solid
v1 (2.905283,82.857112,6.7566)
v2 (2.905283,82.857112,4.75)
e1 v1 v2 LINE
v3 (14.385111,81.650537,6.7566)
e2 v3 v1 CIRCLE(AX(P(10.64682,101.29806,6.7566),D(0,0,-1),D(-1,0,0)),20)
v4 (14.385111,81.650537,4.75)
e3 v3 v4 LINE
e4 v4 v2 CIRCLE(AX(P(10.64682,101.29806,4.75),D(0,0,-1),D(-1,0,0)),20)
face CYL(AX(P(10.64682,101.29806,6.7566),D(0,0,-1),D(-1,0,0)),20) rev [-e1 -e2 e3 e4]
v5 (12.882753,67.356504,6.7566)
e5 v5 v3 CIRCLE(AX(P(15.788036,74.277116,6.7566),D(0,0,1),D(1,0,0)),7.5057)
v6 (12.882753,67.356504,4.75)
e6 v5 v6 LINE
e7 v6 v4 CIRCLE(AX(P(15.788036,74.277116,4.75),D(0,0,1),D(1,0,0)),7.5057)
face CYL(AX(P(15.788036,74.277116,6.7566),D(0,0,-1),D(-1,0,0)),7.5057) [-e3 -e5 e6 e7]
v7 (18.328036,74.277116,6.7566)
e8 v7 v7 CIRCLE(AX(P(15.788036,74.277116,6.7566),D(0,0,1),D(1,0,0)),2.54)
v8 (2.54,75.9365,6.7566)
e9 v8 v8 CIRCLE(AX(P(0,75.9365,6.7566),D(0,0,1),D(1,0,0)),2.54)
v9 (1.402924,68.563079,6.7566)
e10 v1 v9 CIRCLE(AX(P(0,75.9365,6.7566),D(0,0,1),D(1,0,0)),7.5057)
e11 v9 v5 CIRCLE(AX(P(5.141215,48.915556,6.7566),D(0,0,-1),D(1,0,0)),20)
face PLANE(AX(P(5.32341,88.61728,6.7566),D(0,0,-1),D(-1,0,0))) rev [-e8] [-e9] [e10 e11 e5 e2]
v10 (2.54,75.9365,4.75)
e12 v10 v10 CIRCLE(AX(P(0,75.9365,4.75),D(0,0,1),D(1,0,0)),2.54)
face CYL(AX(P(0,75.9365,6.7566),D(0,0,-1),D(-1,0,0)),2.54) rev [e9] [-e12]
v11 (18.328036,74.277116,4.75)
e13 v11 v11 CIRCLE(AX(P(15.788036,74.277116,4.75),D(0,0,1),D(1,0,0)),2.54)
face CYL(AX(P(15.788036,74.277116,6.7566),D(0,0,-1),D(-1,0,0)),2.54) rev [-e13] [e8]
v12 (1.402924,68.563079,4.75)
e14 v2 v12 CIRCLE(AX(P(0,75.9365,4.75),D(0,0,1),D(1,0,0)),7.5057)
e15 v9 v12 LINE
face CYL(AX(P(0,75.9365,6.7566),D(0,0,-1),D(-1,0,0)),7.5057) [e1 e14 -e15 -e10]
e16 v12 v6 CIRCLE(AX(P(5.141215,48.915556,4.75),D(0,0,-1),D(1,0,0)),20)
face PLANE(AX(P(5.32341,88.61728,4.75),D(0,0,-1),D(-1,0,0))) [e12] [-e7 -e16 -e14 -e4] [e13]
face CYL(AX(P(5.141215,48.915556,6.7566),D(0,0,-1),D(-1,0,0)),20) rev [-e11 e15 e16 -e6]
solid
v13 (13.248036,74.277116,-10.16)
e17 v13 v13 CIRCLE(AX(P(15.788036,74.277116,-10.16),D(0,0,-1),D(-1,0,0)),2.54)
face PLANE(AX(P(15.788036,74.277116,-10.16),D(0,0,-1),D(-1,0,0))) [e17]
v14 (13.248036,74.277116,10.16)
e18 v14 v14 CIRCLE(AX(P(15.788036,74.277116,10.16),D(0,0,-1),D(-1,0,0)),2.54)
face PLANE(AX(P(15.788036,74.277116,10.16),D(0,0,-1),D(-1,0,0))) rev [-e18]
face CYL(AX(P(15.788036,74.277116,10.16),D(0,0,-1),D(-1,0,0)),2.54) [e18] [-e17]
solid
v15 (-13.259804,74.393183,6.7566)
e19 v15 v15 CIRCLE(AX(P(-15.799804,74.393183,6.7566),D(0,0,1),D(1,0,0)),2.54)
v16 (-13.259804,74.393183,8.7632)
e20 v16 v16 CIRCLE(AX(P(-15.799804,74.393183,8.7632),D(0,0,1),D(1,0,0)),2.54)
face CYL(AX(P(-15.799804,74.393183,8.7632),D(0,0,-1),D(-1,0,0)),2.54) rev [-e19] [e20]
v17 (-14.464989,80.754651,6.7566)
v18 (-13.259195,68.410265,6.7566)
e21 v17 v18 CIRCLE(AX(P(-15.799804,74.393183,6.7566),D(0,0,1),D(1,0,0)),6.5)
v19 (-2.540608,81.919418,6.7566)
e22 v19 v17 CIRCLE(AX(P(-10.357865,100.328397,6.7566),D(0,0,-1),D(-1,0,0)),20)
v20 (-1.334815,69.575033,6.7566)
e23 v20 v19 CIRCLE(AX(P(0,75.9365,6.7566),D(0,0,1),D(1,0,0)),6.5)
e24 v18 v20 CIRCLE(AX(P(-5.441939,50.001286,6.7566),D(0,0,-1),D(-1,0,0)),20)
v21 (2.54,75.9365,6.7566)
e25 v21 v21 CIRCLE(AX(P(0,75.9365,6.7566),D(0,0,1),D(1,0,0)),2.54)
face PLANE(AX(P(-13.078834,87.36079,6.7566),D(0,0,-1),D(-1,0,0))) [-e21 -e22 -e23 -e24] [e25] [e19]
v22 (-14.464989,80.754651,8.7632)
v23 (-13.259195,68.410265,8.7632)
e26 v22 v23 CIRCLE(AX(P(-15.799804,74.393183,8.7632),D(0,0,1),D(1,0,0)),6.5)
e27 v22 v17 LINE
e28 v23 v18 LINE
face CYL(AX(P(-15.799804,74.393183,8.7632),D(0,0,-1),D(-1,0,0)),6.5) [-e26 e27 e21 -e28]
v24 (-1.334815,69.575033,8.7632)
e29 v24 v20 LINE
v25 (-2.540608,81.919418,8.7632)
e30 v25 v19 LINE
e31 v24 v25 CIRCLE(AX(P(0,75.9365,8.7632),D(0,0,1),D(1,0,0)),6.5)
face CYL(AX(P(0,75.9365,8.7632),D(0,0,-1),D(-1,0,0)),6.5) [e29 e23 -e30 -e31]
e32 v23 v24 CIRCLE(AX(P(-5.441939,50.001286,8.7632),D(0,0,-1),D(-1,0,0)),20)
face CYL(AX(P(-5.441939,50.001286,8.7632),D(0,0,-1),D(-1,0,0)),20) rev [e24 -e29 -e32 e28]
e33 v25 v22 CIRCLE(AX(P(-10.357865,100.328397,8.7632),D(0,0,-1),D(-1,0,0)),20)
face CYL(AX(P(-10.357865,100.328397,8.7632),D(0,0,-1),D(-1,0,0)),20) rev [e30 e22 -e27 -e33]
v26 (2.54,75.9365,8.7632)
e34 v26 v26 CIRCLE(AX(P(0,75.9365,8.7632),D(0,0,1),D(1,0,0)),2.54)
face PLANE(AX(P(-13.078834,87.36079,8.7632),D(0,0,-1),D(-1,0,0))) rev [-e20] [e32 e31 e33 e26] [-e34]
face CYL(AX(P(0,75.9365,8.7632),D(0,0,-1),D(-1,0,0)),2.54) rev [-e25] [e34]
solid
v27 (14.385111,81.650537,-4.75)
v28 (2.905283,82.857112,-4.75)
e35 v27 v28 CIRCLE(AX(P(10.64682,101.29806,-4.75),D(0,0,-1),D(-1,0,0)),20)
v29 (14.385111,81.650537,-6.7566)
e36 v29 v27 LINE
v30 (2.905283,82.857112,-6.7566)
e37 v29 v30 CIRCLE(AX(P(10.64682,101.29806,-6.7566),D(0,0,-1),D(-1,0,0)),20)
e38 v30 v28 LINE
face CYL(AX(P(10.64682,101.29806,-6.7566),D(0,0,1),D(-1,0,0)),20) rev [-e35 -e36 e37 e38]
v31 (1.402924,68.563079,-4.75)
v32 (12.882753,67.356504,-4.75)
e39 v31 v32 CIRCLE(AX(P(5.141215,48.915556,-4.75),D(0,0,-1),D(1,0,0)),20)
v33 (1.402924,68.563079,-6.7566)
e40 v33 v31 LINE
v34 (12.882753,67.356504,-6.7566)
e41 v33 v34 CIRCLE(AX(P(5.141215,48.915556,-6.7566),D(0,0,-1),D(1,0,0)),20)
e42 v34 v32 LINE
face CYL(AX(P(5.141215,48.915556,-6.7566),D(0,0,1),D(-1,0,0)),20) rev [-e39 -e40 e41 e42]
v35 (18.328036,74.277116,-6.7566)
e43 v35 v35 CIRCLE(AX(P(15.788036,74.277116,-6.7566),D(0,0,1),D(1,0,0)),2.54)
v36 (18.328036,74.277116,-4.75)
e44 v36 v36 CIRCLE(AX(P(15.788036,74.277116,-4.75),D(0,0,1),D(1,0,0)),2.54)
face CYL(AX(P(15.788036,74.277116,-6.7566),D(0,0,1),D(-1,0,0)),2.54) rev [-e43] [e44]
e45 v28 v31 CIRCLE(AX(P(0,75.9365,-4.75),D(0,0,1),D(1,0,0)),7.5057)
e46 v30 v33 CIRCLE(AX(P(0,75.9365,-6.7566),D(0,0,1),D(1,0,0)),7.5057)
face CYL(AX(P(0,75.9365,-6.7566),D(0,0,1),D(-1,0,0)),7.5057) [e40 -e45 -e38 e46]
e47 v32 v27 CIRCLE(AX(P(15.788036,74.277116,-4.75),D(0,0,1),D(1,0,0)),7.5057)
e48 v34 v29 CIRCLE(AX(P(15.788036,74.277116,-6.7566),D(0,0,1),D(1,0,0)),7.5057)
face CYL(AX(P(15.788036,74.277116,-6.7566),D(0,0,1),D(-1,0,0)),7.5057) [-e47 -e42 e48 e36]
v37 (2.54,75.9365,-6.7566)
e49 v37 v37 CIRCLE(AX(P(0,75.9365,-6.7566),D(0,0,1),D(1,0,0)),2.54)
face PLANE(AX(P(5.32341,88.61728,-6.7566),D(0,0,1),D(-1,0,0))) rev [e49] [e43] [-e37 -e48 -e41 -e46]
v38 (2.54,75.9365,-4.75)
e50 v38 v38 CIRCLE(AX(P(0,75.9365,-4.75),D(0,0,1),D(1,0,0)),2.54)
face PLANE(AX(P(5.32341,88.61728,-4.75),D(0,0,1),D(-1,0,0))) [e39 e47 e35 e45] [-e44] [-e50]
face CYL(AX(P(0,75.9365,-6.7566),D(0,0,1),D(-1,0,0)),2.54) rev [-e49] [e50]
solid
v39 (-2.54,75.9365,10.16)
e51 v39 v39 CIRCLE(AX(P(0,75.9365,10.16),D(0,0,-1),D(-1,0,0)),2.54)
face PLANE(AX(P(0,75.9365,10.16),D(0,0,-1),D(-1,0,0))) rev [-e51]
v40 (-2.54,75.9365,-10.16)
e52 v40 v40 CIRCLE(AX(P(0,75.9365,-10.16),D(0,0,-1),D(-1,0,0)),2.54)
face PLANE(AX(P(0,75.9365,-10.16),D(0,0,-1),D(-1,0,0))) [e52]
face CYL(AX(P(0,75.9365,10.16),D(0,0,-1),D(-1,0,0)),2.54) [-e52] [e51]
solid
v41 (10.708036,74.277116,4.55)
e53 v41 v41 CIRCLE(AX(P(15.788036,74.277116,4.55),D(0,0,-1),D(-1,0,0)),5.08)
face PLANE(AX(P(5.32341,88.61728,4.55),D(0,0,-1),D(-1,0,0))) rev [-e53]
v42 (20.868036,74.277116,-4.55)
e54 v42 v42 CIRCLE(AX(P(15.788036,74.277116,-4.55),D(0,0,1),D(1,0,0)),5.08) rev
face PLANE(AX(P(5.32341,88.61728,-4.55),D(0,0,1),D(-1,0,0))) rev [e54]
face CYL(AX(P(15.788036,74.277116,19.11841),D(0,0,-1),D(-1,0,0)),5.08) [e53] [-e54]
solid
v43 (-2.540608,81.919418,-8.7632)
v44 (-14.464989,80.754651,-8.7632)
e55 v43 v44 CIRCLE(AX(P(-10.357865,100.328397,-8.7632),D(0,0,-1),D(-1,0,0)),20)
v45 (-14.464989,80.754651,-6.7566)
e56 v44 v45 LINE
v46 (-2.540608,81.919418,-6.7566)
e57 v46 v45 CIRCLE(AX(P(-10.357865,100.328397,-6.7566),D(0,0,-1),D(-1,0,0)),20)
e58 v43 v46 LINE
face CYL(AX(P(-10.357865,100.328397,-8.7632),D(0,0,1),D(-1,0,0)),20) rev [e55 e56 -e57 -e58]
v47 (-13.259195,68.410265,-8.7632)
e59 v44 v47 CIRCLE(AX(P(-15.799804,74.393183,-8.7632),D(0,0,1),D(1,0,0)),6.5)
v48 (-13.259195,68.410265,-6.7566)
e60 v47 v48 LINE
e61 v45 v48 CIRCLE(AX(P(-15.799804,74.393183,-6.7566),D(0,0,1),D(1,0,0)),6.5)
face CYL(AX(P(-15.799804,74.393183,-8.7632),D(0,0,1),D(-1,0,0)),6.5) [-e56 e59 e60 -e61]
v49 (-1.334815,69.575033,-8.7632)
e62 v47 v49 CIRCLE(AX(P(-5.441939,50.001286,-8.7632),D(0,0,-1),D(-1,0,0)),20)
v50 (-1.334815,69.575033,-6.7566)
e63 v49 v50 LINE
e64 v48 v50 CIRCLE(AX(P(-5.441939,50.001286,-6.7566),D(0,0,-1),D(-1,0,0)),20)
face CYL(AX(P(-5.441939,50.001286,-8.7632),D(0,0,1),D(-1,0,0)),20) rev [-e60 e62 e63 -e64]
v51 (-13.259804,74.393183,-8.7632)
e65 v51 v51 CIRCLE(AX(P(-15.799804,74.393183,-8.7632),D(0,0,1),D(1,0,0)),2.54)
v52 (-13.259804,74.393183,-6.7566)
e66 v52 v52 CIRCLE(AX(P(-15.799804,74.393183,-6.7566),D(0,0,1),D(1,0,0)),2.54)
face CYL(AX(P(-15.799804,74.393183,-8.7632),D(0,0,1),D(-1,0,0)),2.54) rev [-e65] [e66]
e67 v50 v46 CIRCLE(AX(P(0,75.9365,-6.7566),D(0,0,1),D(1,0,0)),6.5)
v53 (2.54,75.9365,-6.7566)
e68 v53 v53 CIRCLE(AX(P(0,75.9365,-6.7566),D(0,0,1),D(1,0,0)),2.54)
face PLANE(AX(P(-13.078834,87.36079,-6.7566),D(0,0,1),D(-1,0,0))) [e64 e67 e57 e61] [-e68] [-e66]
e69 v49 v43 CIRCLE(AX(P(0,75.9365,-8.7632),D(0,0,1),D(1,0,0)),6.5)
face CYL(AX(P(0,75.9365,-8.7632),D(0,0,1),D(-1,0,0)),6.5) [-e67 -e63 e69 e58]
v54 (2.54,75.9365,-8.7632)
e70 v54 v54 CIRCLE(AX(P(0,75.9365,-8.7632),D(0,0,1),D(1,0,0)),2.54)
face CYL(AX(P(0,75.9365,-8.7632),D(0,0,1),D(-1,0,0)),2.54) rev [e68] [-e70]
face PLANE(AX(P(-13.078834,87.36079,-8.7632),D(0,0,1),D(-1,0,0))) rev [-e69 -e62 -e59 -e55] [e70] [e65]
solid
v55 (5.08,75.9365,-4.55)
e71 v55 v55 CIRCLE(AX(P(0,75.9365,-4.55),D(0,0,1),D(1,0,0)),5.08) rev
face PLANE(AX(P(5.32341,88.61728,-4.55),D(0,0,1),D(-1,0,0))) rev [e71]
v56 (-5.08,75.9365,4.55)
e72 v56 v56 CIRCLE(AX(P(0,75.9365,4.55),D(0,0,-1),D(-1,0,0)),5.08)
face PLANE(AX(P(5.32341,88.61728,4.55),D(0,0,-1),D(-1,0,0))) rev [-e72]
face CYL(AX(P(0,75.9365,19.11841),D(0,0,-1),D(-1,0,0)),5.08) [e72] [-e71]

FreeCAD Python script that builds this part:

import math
import FreeCAD as App
import Part
import Sketcher
from FreeCAD import Vector
Q = App.Units.Quantity

doc = App.newDocument("Part")
params = doc.addObject("Spreadsheet::Sheet", "Params")
for row, (alias, value) in enumerate([
    ("sketch1_diameter", "0.2 in"),
    ("pad1_length", "0.079 in"),
    ("sketch2_diameter", "0.2 in"),
    ("pad2_length", "0.079 in"),
    ("sketch3_diameter", "0.2 in"),
    ("pad3_length", "0.4 in"),
    ("pad3_length2", "0.4 in"),
    ("sketch4_diameter", "0.2 in"),
    ("pad4_length", "0.4 in"),
    ("pad4_length2", "0.4 in"),
    ("sketch5_diameter", "0.4 in"),
    ("pad5_length", "4.55 mm"),
    ("pad5_length2", "4.55 mm"),
    ("sketch6_diameter", "0.4 in"),
    ("pad6_length", "4.55 mm"),
    ("pad6_length2", "4.55 mm"),
], start=1):
    params.set(f"A{row}", alias)
    params.set(f"B{row}", "=" + value)
    params.setAlias(f"B{row}", alias)

body = doc.addObject("PartDesign::Body", "Body")

sketch1 = body.newObject("Sketcher::SketchObject", "Sketch")
sketch1.AttachmentSupport = (doc.getObject("XY_Plane"), [""])
sketch1.MapMode = "FlatFace"
sketch1.AttachmentOffset = App.Placement(Vector(0, 0, 4.75), App.Rotation())
sketch1.addGeometry(Part.ArcOfCircle(Part.Circle(Vector(0, 75.9, 0), Vector(0, 0, 1), 7.5), math.radians(67), math.radians(281)), False)
sketch1.addGeometry(Part.ArcOfCircle(Part.Circle(Vector(5.1, 48.9, 0), Vector(0, 0, 1), 20), math.radians(67), math.radians(101)), False)
sketch1.addGeometry(Part.ArcOfCircle(Part.Circle(Vector(15.8, 74.3, 0), Vector(0, 0, 1), 7.5), math.radians(-113), math.radians(101)), False)
sketch1.addGeometry(Part.ArcOfCircle(Part.Circle(Vector(10.6, 101.3, 0), Vector(0, 0, 1), 20), math.radians(-113), math.radians(-79)), False)
sketch1.addGeometry(Part.Circle(Vector(15.8, 74.3, 0), Vector(0, 0, 1), 2.5), False)
sketch1.addGeometry(Part.Circle(Vector(0, 75.9, 0), Vector(0, 0, 1), 2.5), False)
sketch1.addConstraint(Sketcher.Constraint("Tangent", 0, 2, 1, 2))
sketch1.addConstraint(Sketcher.Constraint("Tangent", 1, 1, 2, 1))
sketch1.addConstraint(Sketcher.Constraint("Tangent", 2, 2, 3, 2))
sketch1.addConstraint(Sketcher.Constraint("Tangent", 3, 1, 0, 1))
sketch1.addConstraint(Sketcher.Constraint("Coincident", 4, 3, 2, 3))
sketch1.addConstraint(Sketcher.Constraint("Coincident", 5, 3, 0, 3))
sketch1.addConstraint(Sketcher.Constraint("Equal", 0, 2))
sketch1.addConstraint(Sketcher.Constraint("Equal", 1, 3))
sketch1.addConstraint(Sketcher.Constraint("Equal", 4, 5))
sketch1.addConstraint(Sketcher.Constraint("PointOnObject", 0, 3, -2))
sketch1.addConstraint(Sketcher.Constraint("Diameter", 4, Q("0.2 in")))
sketch1.addConstraint(Sketcher.Constraint("Radius", 0, Q("0.2955 in")))
sketch1.addConstraint(Sketcher.Constraint("Radius", 1, 20.0))
sketch1.addConstraint(Sketcher.Constraint("DistanceY", -1, 1, 0, 3, 75.9365))
sketch1.addConstraint(Sketcher.Constraint("DistanceX", -1, 1, 3, 3, 10.64682))
sketch1.addConstraint(Sketcher.Constraint("DistanceY", -1, 1, 0, 2, 68.563079))
sketch1.setExpression("Constraints[10]", "Params.sketch1_diameter")
pad1 = body.newObject("PartDesign::Pad", "Pad")
pad1.Profile = sketch1
pad1.setExpression("Length", "Params.pad1_length")
body2 = doc.addObject("PartDesign::Body", "Body001")

sketch2 = body2.newObject("Sketcher::SketchObject", "Sketch001")
sketch2.AttachmentSupport = (doc.getObject("XY_Plane001"), [""])
sketch2.MapMode = "FlatFace"
sketch2.AttachmentOffset = App.Placement(Vector(0, 0, 6.7566), App.Rotation())
sketch2.addGeometry(Part.ArcOfCircle(Part.Circle(Vector(0, 75.9, 0), Vector(0, 0, 1), 6.5), math.radians(-102), math.radians(113)), False)
sketch2.addGeometry(Part.ArcOfCircle(Part.Circle(Vector(-10.4, 100.3, 0), Vector(0, 0, 1), 20), math.radians(-102), math.radians(-67)), False)
sketch2.addGeometry(Part.ArcOfCircle(Part.Circle(Vector(-15.8, 74.4, 0), Vector(0, 0, 1), 6.5), math.radians(78), math.radians(293)), False)
sketch2.addGeometry(Part.ArcOfCircle(Part.Circle(Vector(-5.4, 50, 0), Vector(0, 0, 1), 20), math.radians(78), math.radians(113)), False)
sketch2.addGeometry(Part.Circle(Vector(-15.8, 74.4, 0), Vector(0, 0, 1), 2.5), False)
sketch2.addGeometry(Part.Circle(Vector(0, 75.9, 0), Vector(0, 0, 1), 2.5), False)
sketch2.addConstraint(Sketcher.Constraint("Tangent", 0, 2, 1, 2))
sketch2.addConstraint(Sketcher.Constraint("Tangent", 1, 1, 2, 1))
sketch2.addConstraint(Sketcher.Constraint("Tangent", 2, 2, 3, 2))
sketch2.addConstraint(Sketcher.Constraint("Tangent", 3, 1, 0, 1))
sketch2.addConstraint(Sketcher.Constraint("Coincident", 4, 3, 2, 3))
sketch2.addConstraint(Sketcher.Constraint("Coincident", 5, 3, 0, 3))
sketch2.addConstraint(Sketcher.Constraint("Equal", 0, 2))
sketch2.addConstraint(Sketcher.Constraint("Equal", 1, 3))
sketch2.addConstraint(Sketcher.Constraint("Equal", 4, 5))
sketch2.addConstraint(Sketcher.Constraint("PointOnObject", 0, 3, -2))
sketch2.addConstraint(Sketcher.Constraint("Diameter", 4, Q("0.2 in")))
sketch2.addConstraint(Sketcher.Constraint("Radius", 0, 6.5))
sketch2.addConstraint(Sketcher.Constraint("Radius", 1, 20.0))
sketch2.addConstraint(Sketcher.Constraint("DistanceY", -1, 1, 0, 3, 75.9365))
sketch2.addConstraint(Sketcher.Constraint("DistanceX", 3, 3, -1, 1, 5.441939))
sketch2.addConstraint(Sketcher.Constraint("DistanceX", 0, 2, -1, 1, 2.540608))
sketch2.setExpression("Constraints[10]", "Params.sketch2_diameter")
pad2 = body2.newObject("PartDesign::Pad", "Pad001")
pad2.Profile = sketch2
pad2.setExpression("Length", "Params.pad2_length")
body3 = doc.addObject("PartDesign::Body", "Body002")
doc.recompute()

mirroring = doc.addObject("Part::Mirroring", "Mirroring")
mirroring.Source = body2
mirroring.Base = Vector(0, 0, 0)
mirroring.Normal = Vector(0, 0, 1)
body3.BaseFeature = mirroring
doc.recompute()
body4 = doc.addObject("PartDesign::Body", "Body003")
doc.recompute()

mirroring2 = doc.addObject("Part::Mirroring", "Mirroring001")
mirroring2.Source = body
mirroring2.Base = Vector(0, 0, 0)
mirroring2.Normal = Vector(0, 0, 1)
body4.BaseFeature = mirroring2
doc.recompute()
body5 = doc.addObject("PartDesign::Body", "Body004")

sketch3 = body5.newObject("Sketcher::SketchObject", "Sketch002")
sketch3.AttachmentSupport = (doc.getObject("XY_Plane004"), [""])
sketch3.MapMode = "FlatFace"
sketch3.addGeometry(Part.Circle(Vector(0, 75.9, 0), Vector(0, 0, 1), 2.5), False)
sketch3.addConstraint(Sketcher.Constraint("PointOnObject", 0, 3, -2))
sketch3.addConstraint(Sketcher.Constraint("Diameter", 0, Q("0.2 in")))
sketch3.addConstraint(Sketcher.Constraint("DistanceY", -1, 1, 0, 3, 75.9365))
sketch3.setExpression("Constraints[1]", "Params.sketch3_diameter")
pad3 = body5.newObject("PartDesign::Pad", "Pad002")
pad3.Profile = sketch3
pad3.Type = "TwoLengths"
pad3.setExpression("Length", "Params.pad3_length")
pad3.setExpression("Length2", "Params.pad3_length2")
pad3.Reversed = True
body6 = doc.addObject("PartDesign::Body", "Body005")

sketch4 = body6.newObject("Sketcher::SketchObject", "Sketch003")
sketch4.AttachmentSupport = (doc.getObject("XY_Plane005"), [""])
sketch4.MapMode = "FlatFace"
sketch4.addGeometry(Part.Circle(Vector(15.8, 74.3, 0), Vector(0, 0, 1), 2.5), False)
sketch4.addConstraint(Sketcher.Constraint("Diameter", 0, Q("0.2 in")))
sketch4.addConstraint(Sketcher.Constraint("DistanceX", -1, 1, 0, 3, 15.788036))
sketch4.addConstraint(Sketcher.Constraint("DistanceY", -1, 1, 0, 3, 74.277116))
sketch4.setExpression("Constraints[0]", "Params.sketch4_diameter")
pad4 = body6.newObject("PartDesign::Pad", "Pad003")
pad4.Profile = sketch4
pad4.Type = "TwoLengths"
pad4.setExpression("Length", "Params.pad4_length")
pad4.setExpression("Length2", "Params.pad4_length2")
pad4.Reversed = True
body7 = doc.addObject("PartDesign::Body", "Body006")

sketch5 = body7.newObject("Sketcher::SketchObject", "Sketch004")
sketch5.AttachmentSupport = (doc.getObject("XY_Plane006"), [""])
sketch5.MapMode = "FlatFace"
sketch5.addGeometry(Part.Circle(Vector(0, 76, 0), Vector(0, 0, 1), 5), False)
sketch5.addConstraint(Sketcher.Constraint("PointOnObject", 0, 3, -2))
sketch5.addConstraint(Sketcher.Constraint("Diameter", 0, Q("0.4 in")))
sketch5.addConstraint(Sketcher.Constraint("DistanceY", -1, 1, 0, 3, 75.9365))
sketch5.setExpression("Constraints[1]", "Params.sketch5_diameter")
pad5 = body7.newObject("PartDesign::Pad", "Pad004")
pad5.Profile = sketch5
pad5.Type = "TwoLengths"
pad5.setExpression("Length", "Params.pad5_length")
pad5.setExpression("Length2", "Params.pad5_length2")
body8 = doc.addObject("PartDesign::Body", "Body007")

sketch6 = body8.newObject("Sketcher::SketchObject", "Sketch005")
sketch6.AttachmentSupport = (doc.getObject("XY_Plane007"), [""])
sketch6.MapMode = "FlatFace"
sketch6.addGeometry(Part.Circle(Vector(16, 74, 0), Vector(0, 0, 1), 5), False)
sketch6.addConstraint(Sketcher.Constraint("Diameter", 0, Q("0.4 in")))
sketch6.addConstraint(Sketcher.Constraint("DistanceX", -1, 1, 0, 3, 15.788036))
sketch6.addConstraint(Sketcher.Constraint("DistanceY", -1, 1, 0, 3, 74.277116))
sketch6.setExpression("Constraints[0]", "Params.sketch6_diameter")
pad6 = body8.newObject("PartDesign::Pad", "Pad005")
pad6.Profile = sketch6
pad6.Type = "TwoLengths"
pad6.setExpression("Length", "Params.pad6_length")
pad6.setExpression("Length2", "Params.pad6_length2")
mirroring.Visibility = False
mirroring2.Visibility = False

doc.recompute()
